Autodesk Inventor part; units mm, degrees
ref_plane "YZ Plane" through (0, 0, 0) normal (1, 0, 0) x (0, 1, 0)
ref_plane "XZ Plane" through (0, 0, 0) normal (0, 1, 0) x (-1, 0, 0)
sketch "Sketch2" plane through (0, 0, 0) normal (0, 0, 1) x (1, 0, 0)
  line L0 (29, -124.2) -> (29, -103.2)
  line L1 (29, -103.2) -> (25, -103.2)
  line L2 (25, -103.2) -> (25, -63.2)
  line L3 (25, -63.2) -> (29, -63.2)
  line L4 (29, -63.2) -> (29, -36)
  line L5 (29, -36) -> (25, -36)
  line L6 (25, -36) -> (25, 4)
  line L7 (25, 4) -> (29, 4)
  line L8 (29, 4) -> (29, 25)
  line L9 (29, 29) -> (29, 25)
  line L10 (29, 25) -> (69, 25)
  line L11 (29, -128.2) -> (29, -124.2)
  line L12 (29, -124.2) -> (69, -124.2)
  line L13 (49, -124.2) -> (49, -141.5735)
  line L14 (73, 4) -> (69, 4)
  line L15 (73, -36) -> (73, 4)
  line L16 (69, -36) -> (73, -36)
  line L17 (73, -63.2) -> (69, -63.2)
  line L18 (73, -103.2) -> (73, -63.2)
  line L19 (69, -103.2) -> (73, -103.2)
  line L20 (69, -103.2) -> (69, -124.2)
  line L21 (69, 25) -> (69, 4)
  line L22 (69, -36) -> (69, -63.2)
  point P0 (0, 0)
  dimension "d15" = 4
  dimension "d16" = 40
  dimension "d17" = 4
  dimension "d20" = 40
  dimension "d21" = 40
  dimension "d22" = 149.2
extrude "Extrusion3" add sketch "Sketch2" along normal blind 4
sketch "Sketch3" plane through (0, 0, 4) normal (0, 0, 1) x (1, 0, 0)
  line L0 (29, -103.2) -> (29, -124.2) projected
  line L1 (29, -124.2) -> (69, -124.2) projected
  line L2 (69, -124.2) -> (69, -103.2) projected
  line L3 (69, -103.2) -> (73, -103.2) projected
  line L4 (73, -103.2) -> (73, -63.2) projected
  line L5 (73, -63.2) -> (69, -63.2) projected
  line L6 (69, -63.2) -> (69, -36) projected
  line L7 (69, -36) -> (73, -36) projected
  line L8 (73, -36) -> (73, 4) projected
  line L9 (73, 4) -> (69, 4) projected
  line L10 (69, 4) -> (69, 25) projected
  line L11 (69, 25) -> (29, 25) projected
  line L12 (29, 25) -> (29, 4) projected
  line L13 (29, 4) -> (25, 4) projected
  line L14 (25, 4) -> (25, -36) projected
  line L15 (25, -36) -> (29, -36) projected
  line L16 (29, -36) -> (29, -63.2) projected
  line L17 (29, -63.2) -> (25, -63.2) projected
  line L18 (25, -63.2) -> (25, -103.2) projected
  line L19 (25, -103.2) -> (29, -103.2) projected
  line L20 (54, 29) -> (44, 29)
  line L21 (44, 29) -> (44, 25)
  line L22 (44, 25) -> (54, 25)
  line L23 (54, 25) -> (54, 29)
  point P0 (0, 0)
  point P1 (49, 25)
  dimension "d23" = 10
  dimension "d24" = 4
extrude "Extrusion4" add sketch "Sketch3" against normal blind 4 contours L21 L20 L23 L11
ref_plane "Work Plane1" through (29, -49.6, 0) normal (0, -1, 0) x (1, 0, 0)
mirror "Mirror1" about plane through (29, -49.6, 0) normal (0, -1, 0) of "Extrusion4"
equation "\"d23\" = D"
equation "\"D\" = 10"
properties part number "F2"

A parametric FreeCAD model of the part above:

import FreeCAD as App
import Part
import Sketcher
Q = App.Units.Quantity

doc = App.newDocument("Part")
body = doc.addObject("PartDesign::Body", "Body")

sketch1 = body.newObject("Sketcher::SketchObject", "Sketch")
sketch1.AttachmentSupport = (doc.getObject("XY_Plane"), [""])
sketch1.MapMode = "FlatFace"
sketch1.addGeometry(Part.LineSegment(App.Vector(29, -103.2, 0), App.Vector(29, -124.2, 0)), False)
sketch1.addGeometry(Part.LineSegment(App.Vector(29, -124.2, 0), App.Vector(69, -124.2, 0)), False)
sketch1.addGeometry(Part.LineSegment(App.Vector(69, -124.2, 0), App.Vector(69, -103.2, 0)), False)
sketch1.addGeometry(Part.LineSegment(App.Vector(69, -103.2, 0), App.Vector(73, -103.2, 0)), False)
sketch1.addGeometry(Part.LineSegment(App.Vector(73, -103.2, 0), App.Vector(73, -63.2, 0)), False)
sketch1.addGeometry(Part.LineSegment(App.Vector(73, -63.2, 0), App.Vector(69, -63.2, 0)), False)
sketch1.addGeometry(Part.LineSegment(App.Vector(69, -63.2, 0), App.Vector(69, -36, 0)), False)
sketch1.addGeometry(Part.LineSegment(App.Vector(69, -36, 0), App.Vector(73, -36, 0)), False)
sketch1.addGeometry(Part.LineSegment(App.Vector(73, -36, 0), App.Vector(73, 4, 0)), False)
sketch1.addGeometry(Part.LineSegment(App.Vector(73, 4, 0), App.Vector(69, 4, 0)), False)
sketch1.addGeometry(Part.LineSegment(App.Vector(69, 4, 0), App.Vector(69, 25, 0)), False)
sketch1.addGeometry(Part.LineSegment(App.Vector(69, 25, 0), App.Vector(29, 25, 0)), False)
sketch1.addGeometry(Part.LineSegment(App.Vector(29, 25, 0), App.Vector(29, 4, 0)), False)
sketch1.addGeometry(Part.LineSegment(App.Vector(29, 4, 0), App.Vector(25, 4, 0)), False)
sketch1.addGeometry(Part.LineSegment(App.Vector(25, 4, 0), App.Vector(25, -36, 0)), False)
sketch1.addGeometry(Part.LineSegment(App.Vector(25, -36, 0), App.Vector(29, -36, 0)), False)
sketch1.addGeometry(Part.LineSegment(App.Vector(29, -36, 0), App.Vector(29, -63.2, 0)), False)
sketch1.addGeometry(Part.LineSegment(App.Vector(29, -63.2, 0), App.Vector(25, -63.2, 0)), False)
sketch1.addGeometry(Part.LineSegment(App.Vector(25, -63.2, 0), App.Vector(25, -103.2, 0)), False)
sketch1.addGeometry(Part.LineSegment(App.Vector(25, -103.2, 0), App.Vector(29, -103.2, 0)), False)
sketch1.addConstraint(Sketcher.Constraint("Coincident", 0, 2, 1, 1))
sketch1.addConstraint(Sketcher.Constraint("Coincident", 1, 2, 2, 1))
sketch1.addConstraint(Sketcher.Constraint("Coincident", 2, 2, 3, 1))
sketch1.addConstraint(Sketcher.Constraint("Coincident", 3, 2, 4, 1))
sketch1.addConstraint(Sketcher.Constraint("Coincident", 4, 2, 5, 1))
sketch1.addConstraint(Sketcher.Constraint("Coincident", 5, 2, 6, 1))
sketch1.addConstraint(Sketcher.Constraint("Coincident", 6, 2, 7, 1))
sketch1.addConstraint(Sketcher.Constraint("Coincident", 7, 2, 8, 1))
sketch1.addConstraint(Sketcher.Constraint("Coincident", 8, 2, 9, 1))
sketch1.addConstraint(Sketcher.Constraint("Coincident", 9, 2, 10, 1))
sketch1.addConstraint(Sketcher.Constraint("Coincident", 10, 2, 11, 1))
sketch1.addConstraint(Sketcher.Constraint("Coincident", 11, 2, 12, 1))
sketch1.addConstraint(Sketcher.Constraint("Coincident", 12, 2, 13, 1))
sketch1.addConstraint(Sketcher.Constraint("Coincident", 13, 2, 14, 1))
sketch1.addConstraint(Sketcher.Constraint("Coincident", 14, 2, 15, 1))
sketch1.addConstraint(Sketcher.Constraint("Coincident", 15, 2, 16, 1))
sketch1.addConstraint(Sketcher.Constraint("Coincident", 16, 2, 17, 1))
sketch1.addConstraint(Sketcher.Constraint("Coincident", 17, 2, 18, 1))
sketch1.addConstraint(Sketcher.Constraint("Coincident", 18, 2, 19, 1))
sketch1.addConstraint(Sketcher.Constraint("Coincident", 19, 2, 0, 1))
sketch1.addConstraint(Sketcher.Constraint("Vertical", 0))
sketch1.addConstraint(Sketcher.Constraint("Horizontal", 1))
sketch1.addConstraint(Sketcher.Constraint("Vertical", 2))
sketch1.addConstraint(Sketcher.Constraint("Horizontal", 3))
sketch1.addConstraint(Sketcher.Constraint("Vertical", 4))
sketch1.addConstraint(Sketcher.Constraint("Horizontal", 5))
sketch1.addConstraint(Sketcher.Constraint("Vertical", 6))
sketch1.addConstraint(Sketcher.Constraint("Horizontal", 7))
sketch1.addConstraint(Sketcher.Constraint("Vertical", 8))
sketch1.addConstraint(Sketcher.Constraint("Horizontal", 9))
sketch1.addConstraint(Sketcher.Constraint("Vertical", 10))
sketch1.addConstraint(Sketcher.Constraint("Horizontal", 11))
sketch1.addConstraint(Sketcher.Constraint("Vertical", 12))
sketch1.addConstraint(Sketcher.Constraint("Horizontal", 13))
sketch1.addConstraint(Sketcher.Constraint("Vertical", 14))
sketch1.addConstraint(Sketcher.Constraint("Horizontal", 15))
sketch1.addConstraint(Sketcher.Constraint("Vertical", 16))
sketch1.addConstraint(Sketcher.Constraint("Horizontal", 17))
sketch1.addConstraint(Sketcher.Constraint("Vertical", 18))
sketch1.addConstraint(Sketcher.Constraint("Horizontal", 19))
sketch1.addConstraint(Sketcher.Constraint("Horizontal", 9, 2, 12, 2))
sketch1.addConstraint(Sketcher.Constraint("Horizontal", 7, 2, 14, 2))
sketch1.addConstraint(Sketcher.Constraint("Horizontal", 5, 2, 16, 2))
sketch1.addConstraint(Sketcher.Constraint("Horizontal", 3, 2, 18, 2))
sketch1.addConstraint(Sketcher.Constraint("Vertical", 2, 2, 5, 2))
sketch1.addConstraint(Sketcher.Constraint("Vertical", 4, 2, 7, 2))
sketch1.addConstraint(Sketcher.Constraint("Vertical", 6, 2, 9, 2))
sketch1.addConstraint(Sketcher.Constraint("Vertical", 0, 2, 11, 2))
sketch1.addConstraint(Sketcher.Constraint("Vertical", 12, 2, 15, 2))
sketch1.addConstraint(Sketcher.Constraint("Vertical", 14, 2, 17, 2))
sketch1.addConstraint(Sketcher.Constraint("Equal", 9, 13))
sketch1.addConstraint(Sketcher.Constraint("Equal", 11, 4))
sketch1.addConstraint(Sketcher.Constraint("Equal", 4, 8))
sketch1.addConstraint(Sketcher.Constraint("Equal", 2, 10))
sketch1.addConstraint(Sketcher.Constraint("DistanceX", 1, 1, 1, 2, Q("40 mm")))
sketch1.addConstraint(Sketcher.Constraint("DistanceX", 3, 1, 3, 2, Q("4 mm")))
sketch1.addConstraint(Sketcher.Constraint("DistanceY", -1, 1, 8, 2, Q("4 mm")))
sketch1.addConstraint(Sketcher.Constraint("DistanceY", 0, 2, 0, 1, Q("21 mm")))
sketch1.addConstraint(Sketcher.Constraint("DistanceY", 6, 1, 6, 2, Q("27.2 mm")))
sketch1.addConstraint(Sketcher.Constraint("DistanceX", -1, 1, 0, 2, Q("29 mm")))
pad1 = body.newObject("PartDesign::Pad", "Pad")
pad1.Profile = sketch1
pad1.Length = 4

sketch2 = body.newObject("Sketcher::SketchObject", "Sketch001")
sketch2.AttachmentSupport = (doc.getObject("XY_Plane"), [""])
sketch2.MapMode = "FlatFace"
sketch2.AttachmentOffset = App.Placement(App.Vector(0, 0, 4), App.Rotation())
sketch2.addGeometry(Part.LineSegment(App.Vector(44, 29, 0), App.Vector(44, 25, 0)), False)
sketch2.addGeometry(Part.LineSegment(App.Vector(44, 25, 0), App.Vector(54, 25, 0)), False)
sketch2.addGeometry(Part.LineSegment(App.Vector(54, 25, 0), App.Vector(54, 29, 0)), False)
sketch2.addGeometry(Part.LineSegment(App.Vector(54, 29, 0), App.Vector(44, 29, 0)), False)
sketch2.addConstraint(Sketcher.Constraint("Coincident", 0, 2, 1, 1))
sketch2.addConstraint(Sketcher.Constraint("Coincident", 1, 2, 2, 1))
sketch2.addConstraint(Sketcher.Constraint("Coincident", 2, 2, 3, 1))
sketch2.addConstraint(Sketcher.Constraint("Coincident", 3, 2, 0, 1))
sketch2.addConstraint(Sketcher.Constraint("Vertical", 0))
sketch2.addConstraint(Sketcher.Constraint("Horizontal", 1))
sketch2.addConstraint(Sketcher.Constraint("Vertical", 2))
sketch2.addConstraint(Sketcher.Constraint("Horizontal", 3))
sketch2.addConstraint(Sketcher.Constraint("DistanceX", 1, 1, 1, 2, Q("10 mm")))
sketch2.addConstraint(Sketcher.Constraint("DistanceY", 0, 2, 0, 1, Q("4 mm")))
sketch2.addConstraint(Sketcher.Constraint("DistanceX", -1, 1, 0, 2, Q("44 mm")))
sketch2.addConstraint(Sketcher.Constraint("DistanceY", -1, 1, 0, 2, Q("25 mm")))
pad2 = body.newObject("PartDesign::Pad", "Pad001")
pad2.Profile = sketch2
pad2.Length = 4
pad2.Reversed = True
doc.recompute()

datumplane = body.newObject("PartDesign::Plane", "DatumPlane")
datumplane.AttachmentSupport = (doc.getObject("XZ_Plane"), [""])
datumplane.MapMode = "FlatFace"
datumplane.AttachmentOffset = App.Placement(App.Vector(0, 0, 49.6), App.Rotation())
mirrored = body.newObject("PartDesign::Mirrored", "Mirrored")
mirrored.Originals = [pad2]
mirrored.MirrorPlane = (datumplane, [""])
body.Tip = mirrored

doc.recompute()
